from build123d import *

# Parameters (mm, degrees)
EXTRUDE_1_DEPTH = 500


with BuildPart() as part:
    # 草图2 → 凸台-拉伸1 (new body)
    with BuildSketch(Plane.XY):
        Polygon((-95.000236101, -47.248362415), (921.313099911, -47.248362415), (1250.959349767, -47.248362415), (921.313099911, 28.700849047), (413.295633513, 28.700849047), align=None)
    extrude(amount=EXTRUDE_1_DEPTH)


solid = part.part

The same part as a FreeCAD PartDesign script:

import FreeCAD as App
import Part
import Sketcher

V = App.Vector
Q = App.Units.Quantity


def add_polygon(sketch, points):
    """Adds a closed chain of lines whose ends are joined by coincident constraints."""
    first, n = sketch.GeometryCount, len(points)
    for a, b in zip(points, points[1:] + points[:1]):
        sketch.addGeometry(Part.LineSegment(App.Vector(*a, 0), App.Vector(*b, 0)), False)
    for i in range(n):
        sketch.addConstraint(Sketcher.Constraint("Coincident", first + i, 2, first + (i + 1) % n, 1))

doc = App.newDocument("Part")
body = doc.addObject("PartDesign::Body", "Body")

# Sketch on XY plane
sketch1 = body.newObject("Sketcher::SketchObject", "Sketch")
sketch1.AttachmentSupport = (doc.getObject("XY_Plane"), [""])
sketch1.MapMode = "FlatFace"
add_polygon(sketch1, [(-95, -47), (1251, -47), (921, 29), (413, 29)])  # lines 0-3
sketch1.addConstraint([
    Sketcher.Constraint("Horizontal", 0),
    Sketcher.Constraint("Horizontal", 2),
    Sketcher.Constraint("DistanceX", -1, 1, 1, 2, Q("921.3131 mm")),
    Sketcher.Constraint("DistanceX", 0, 1, 0, 2, Q("1345.959586 mm")),
    Sketcher.Constraint("DistanceX", 2, 2, 2, 1, Q("508.017466 mm")),
    Sketcher.Constraint("DistanceX", -1, 1, 0, 2, Q("1250.95935 mm")),
    Sketcher.Constraint("DistanceY", -1, 1, 1, 2, Q("28.700849 mm")),
    Sketcher.Constraint("DistanceY", 0, 2, 1, 2, Q("75.949211 mm")),
])
pad1 = body.newObject("PartDesign::Pad", "Pad")
pad1.Profile = sketch1
pad1.Length = 500

doc.recompute()
